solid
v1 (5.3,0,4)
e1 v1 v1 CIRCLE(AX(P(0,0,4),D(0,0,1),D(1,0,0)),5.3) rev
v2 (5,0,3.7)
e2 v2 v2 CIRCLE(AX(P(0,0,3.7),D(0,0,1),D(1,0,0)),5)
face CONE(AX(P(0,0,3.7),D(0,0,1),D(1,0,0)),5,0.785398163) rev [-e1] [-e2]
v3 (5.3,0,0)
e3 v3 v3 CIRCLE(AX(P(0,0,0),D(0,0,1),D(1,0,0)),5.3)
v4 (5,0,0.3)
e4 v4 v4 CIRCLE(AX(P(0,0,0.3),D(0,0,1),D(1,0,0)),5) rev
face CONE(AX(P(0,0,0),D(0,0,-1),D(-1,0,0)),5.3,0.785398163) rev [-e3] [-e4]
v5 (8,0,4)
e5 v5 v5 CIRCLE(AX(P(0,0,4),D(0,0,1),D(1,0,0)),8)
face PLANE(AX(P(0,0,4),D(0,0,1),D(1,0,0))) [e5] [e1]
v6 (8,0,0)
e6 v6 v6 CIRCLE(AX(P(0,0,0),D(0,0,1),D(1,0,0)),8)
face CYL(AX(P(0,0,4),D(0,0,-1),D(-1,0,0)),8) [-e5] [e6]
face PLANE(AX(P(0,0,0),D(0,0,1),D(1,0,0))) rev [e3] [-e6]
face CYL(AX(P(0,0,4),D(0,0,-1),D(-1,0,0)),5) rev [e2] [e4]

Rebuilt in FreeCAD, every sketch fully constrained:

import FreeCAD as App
import Part
import Sketcher
from FreeCAD import Vector
Q = App.Units.Quantity


def edges_at(feature, points):
    """Names of the edges that pass closest to the given points."""
    edges = feature.Shape.Edges
    near = lambda p: min(range(len(edges)), key=lambda i: edges[i].distToShape(Part.Vertex(*p))[0])
    return sorted({f"Edge{near(p) + 1}" for p in points})

doc = App.newDocument("Part")
body = doc.addObject("PartDesign::Body", "Body")

sketch1 = body.newObject("Sketcher::SketchObject", "Sketch")
sketch1.AttachmentSupport = (doc.getObject("XY_Plane"), [""])
sketch1.MapMode = "FlatFace"
sketch1.addGeometry([
    Part.Circle(Vector(0, 0, 0), Vector(0, 0, 1), 8),
    Part.Circle(Vector(0, 0, 0), Vector(0, 0, 1), 5),
], False)
sketch1.addConstraint([
    Sketcher.Constraint("Coincident", 0, 3, -1, 1),
    Sketcher.Constraint("Coincident", 1, 3, -1, 1),
    Sketcher.Constraint("Diameter", 0, Q("16 mm")),
    Sketcher.Constraint("Diameter", 1, Q("10 mm")),
])
pad1 = body.newObject("PartDesign::Pad", "Pad")
pad1.Profile = sketch1
pad1.Length = 4
doc.recompute()

chamfer = body.newObject("PartDesign::Chamfer", "Chamfer")
chamfer.Base = (pad1, edges_at(pad1, [(-5, 0, 0), (-5, 0, 4)]))
chamfer.Size = 0.3

doc.recompute()
